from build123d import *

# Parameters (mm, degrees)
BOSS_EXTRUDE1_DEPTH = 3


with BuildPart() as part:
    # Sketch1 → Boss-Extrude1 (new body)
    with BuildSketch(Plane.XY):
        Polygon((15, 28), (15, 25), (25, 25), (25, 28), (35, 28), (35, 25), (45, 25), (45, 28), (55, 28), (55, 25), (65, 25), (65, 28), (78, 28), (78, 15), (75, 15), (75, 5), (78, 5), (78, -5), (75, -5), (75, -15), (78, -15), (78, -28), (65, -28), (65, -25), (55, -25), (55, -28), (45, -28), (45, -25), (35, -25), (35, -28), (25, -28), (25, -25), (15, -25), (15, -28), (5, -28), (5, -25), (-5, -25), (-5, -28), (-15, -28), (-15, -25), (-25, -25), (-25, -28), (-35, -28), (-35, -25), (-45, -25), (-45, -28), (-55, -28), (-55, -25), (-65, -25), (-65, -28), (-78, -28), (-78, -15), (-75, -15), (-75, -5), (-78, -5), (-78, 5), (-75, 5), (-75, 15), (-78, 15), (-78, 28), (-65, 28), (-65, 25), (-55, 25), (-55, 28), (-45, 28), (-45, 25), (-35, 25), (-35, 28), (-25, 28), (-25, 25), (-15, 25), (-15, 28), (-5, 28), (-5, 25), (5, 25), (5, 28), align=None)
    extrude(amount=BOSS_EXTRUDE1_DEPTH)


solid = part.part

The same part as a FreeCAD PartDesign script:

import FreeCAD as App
import Part
import Sketcher
from FreeCAD import Vector


def add_polygon(sketch, points):
    """Adds a closed chain of lines whose ends are joined by coincident constraints."""
    first, n = sketch.GeometryCount, len(points)
    for a, b in zip(points, points[1:] + points[:1]):
        sketch.addGeometry(Part.LineSegment(App.Vector(*a, 0), App.Vector(*b, 0)), False)
    for i in range(n):
        sketch.addConstraint(Sketcher.Constraint("Coincident", first + i, 2, first + (i + 1) % n, 1))

doc = App.newDocument("Part")
body = doc.addObject("PartDesign::Body", "Body")

sketch1 = doc.addObject("Sketcher::SketchObject", "Sketch")
body.addObject(sketch1)
sketch1.AttachmentSupport = (doc.XY_Plane, [""])
sketch1.MapMode = "FlatFace"
add_polygon(sketch1, [(15, 25), (15, 28), (5, 28), (5, 25), (-5, 25), (-5, 28), (-15, 28), (-15, 25), (-25, 25), (-25, 28), (-35, 28), (-35, 25), (-45, 25), (-45, 28), (-55, 28), (-55, 25), (-65, 25), (-65, 28), (-78, 28), (-78, 15), (-75, 15), (-75, 5), (-78, 5), (-78, -5), (-75, -5), (-75, -15), (-78, -15), (-78, -28), (-65, -28), (-65, -25), (-55, -25), (-55, -28), (-45, -28), (-45, -25), (-35, -25), (-35, -28), (-25, -28), (-25, -25), (-15, -25), (-15, -28), (-5, -28), (-5, -25), (5, -25), (5, -28), (15, -28), (15, -25), (25, -25), (25, -28), (35, -28), (35, -25), (45, -25), (45, -28), (55, -28), (55, -25), (65, -25), (65, -28), (78, -28), (78, -15), (75, -15), (75, -5), (78, -5), (78, 5), (75, 5), (75, 15), (78, 15), (78, 28), (65, 28), (65, 25), (55, 25), (55, 28), (45, 28), (45, 25), (35, 25), (35, 28), (25, 28), (25, 25)])
sketch1.addConstraint(Sketcher.Constraint("Vertical", 0))
sketch1.addConstraint(Sketcher.Constraint("Horizontal", 1))
sketch1.addConstraint(Sketcher.Constraint("Vertical", 2))
sketch1.addConstraint(Sketcher.Constraint("Horizontal", 3))
sketch1.addConstraint(Sketcher.Constraint("Vertical", 4))
sketch1.addConstraint(Sketcher.Constraint("Horizontal", 5))
sketch1.addConstraint(Sketcher.Constraint("Vertical", 6))
sketch1.addConstraint(Sketcher.Constraint("Horizontal", 7))
sketch1.addConstraint(Sketcher.Constraint("Vertical", 8))
sketch1.addConstraint(Sketcher.Constraint("Horizontal", 9))
sketch1.addConstraint(Sketcher.Constraint("Vertical", 10))
sketch1.addConstraint(Sketcher.Constraint("Horizontal", 11))
sketch1.addConstraint(Sketcher.Constraint("Vertical", 12))
sketch1.addConstraint(Sketcher.Constraint("Horizontal", 13))
sketch1.addConstraint(Sketcher.Constraint("Vertical", 14))
sketch1.addConstraint(Sketcher.Constraint("Horizontal", 15))
sketch1.addConstraint(Sketcher.Constraint("Vertical", 16))
sketch1.addConstraint(Sketcher.Constraint("Horizontal", 17))
sketch1.addConstraint(Sketcher.Constraint("Vertical", 18))
sketch1.addConstraint(Sketcher.Constraint("Horizontal", 19))
sketch1.addConstraint(Sketcher.Constraint("Vertical", 20))
sketch1.addConstraint(Sketcher.Constraint("Horizontal", 21))
sketch1.addConstraint(Sketcher.Constraint("Vertical", 22))
sketch1.addConstraint(Sketcher.Constraint("Horizontal", 23))
sketch1.addConstraint(Sketcher.Constraint("Vertical", 24))
sketch1.addConstraint(Sketcher.Constraint("Horizontal", 25))
sketch1.addConstraint(Sketcher.Constraint("Vertical", 26))
sketch1.addConstraint(Sketcher.Constraint("Horizontal", 27))
sketch1.addConstraint(Sketcher.Constraint("Vertical", 28))
sketch1.addConstraint(Sketcher.Constraint("Horizontal", 29))
sketch1.addConstraint(Sketcher.Constraint("Vertical", 30))
sketch1.addConstraint(Sketcher.Constraint("Horizontal", 31))
sketch1.addConstraint(Sketcher.Constraint("Vertical", 32))
sketch1.addConstraint(Sketcher.Constraint("Horizontal", 33))
sketch1.addConstraint(Sketcher.Constraint("Vertical", 34))
sketch1.addConstraint(Sketcher.Constraint("Horizontal", 35))
sketch1.addConstraint(Sketcher.Constraint("Vertical", 36))
sketch1.addConstraint(Sketcher.Constraint("Horizontal", 37))
sketch1.addConstraint(Sketcher.Constraint("Vertical", 38))
sketch1.addConstraint(Sketcher.Constraint("Horizontal", 39))
sketch1.addConstraint(Sketcher.Constraint("Vertical", 40))
sketch1.addConstraint(Sketcher.Constraint("Horizontal", 41))
sketch1.addConstraint(Sketcher.Constraint("Vertical", 42))
sketch1.addConstraint(Sketcher.Constraint("Horizontal", 43))
sketch1.addConstraint(Sketcher.Constraint("Vertical", 44))
sketch1.addConstraint(Sketcher.Constraint("Horizontal", 45))
sketch1.addConstraint(Sketcher.Constraint("Vertical", 46))
sketch1.addConstraint(Sketcher.Constraint("Horizontal", 47))
sketch1.addConstraint(Sketcher.Constraint("Vertical", 48))
sketch1.addConstraint(Sketcher.Constraint("Horizontal", 49))
sketch1.addConstraint(Sketcher.Constraint("Vertical", 50))
sketch1.addConstraint(Sketcher.Constraint("Horizontal", 51))
sketch1.addConstraint(Sketcher.Constraint("Vertical", 52))
sketch1.addConstraint(Sketcher.Constraint("Horizontal", 53))
sketch1.addConstraint(Sketcher.Constraint("Vertical", 54))
sketch1.addConstraint(Sketcher.Constraint("Horizontal", 55))
sketch1.addConstraint(Sketcher.Constraint("Vertical", 56))
sketch1.addConstraint(Sketcher.Constraint("Horizontal", 57))
sketch1.addConstraint(Sketcher.Constraint("Vertical", 58))
sketch1.addConstraint(Sketcher.Constraint("Horizontal", 59))
sketch1.addConstraint(Sketcher.Constraint("Vertical", 60))
sketch1.addConstraint(Sketcher.Constraint("Horizontal", 61))
sketch1.addConstraint(Sketcher.Constraint("Vertical", 62))
sketch1.addConstraint(Sketcher.Constraint("Horizontal", 63))
sketch1.addConstraint(Sketcher.Constraint("Vertical", 64))
sketch1.addConstraint(Sketcher.Constraint("Horizontal", 65))
sketch1.addConstraint(Sketcher.Constraint("Vertical", 66))
sketch1.addConstraint(Sketcher.Constraint("Horizontal", 67))
sketch1.addConstraint(Sketcher.Constraint("Vertical", 68))
sketch1.addConstraint(Sketcher.Constraint("Horizontal", 69))
sketch1.addConstraint(Sketcher.Constraint("Vertical", 70))
sketch1.addConstraint(Sketcher.Constraint("Horizontal", 71))
sketch1.addConstraint(Sketcher.Constraint("Vertical", 72))
sketch1.addConstraint(Sketcher.Constraint("Horizontal", 73))
sketch1.addConstraint(Sketcher.Constraint("Vertical", 74))
sketch1.addConstraint(Sketcher.Constraint("Horizontal", 75))
sketch1.addConstraint(Sketcher.Constraint("Symmetric", 0, 2, 38, 2, -1, 1))
sketch1.addConstraint(Sketcher.Constraint("Symmetric", 2, 2, 40, 2, -1, 1))
sketch1.addConstraint(Sketcher.Constraint("Symmetric", 4, 2, 42, 2, -1, 1))
sketch1.addConstraint(Sketcher.Constraint("Symmetric", 6, 2, 44, 2, -1, 1))
sketch1.addConstraint(Sketcher.Constraint("Symmetric", 8, 2, 46, 2, -1, 1))
sketch1.addConstraint(Sketcher.Constraint("Symmetric", 10, 2, 48, 2, -1, 1))
sketch1.addConstraint(Sketcher.Constraint("Symmetric", 12, 2, 50, 2, -1, 1))
sketch1.addConstraint(Sketcher.Constraint("Symmetric", 14, 2, 52, 2, -1, 1))
sketch1.addConstraint(Sketcher.Constraint("Symmetric", 16, 2, 54, 2, -1, 1))
sketch1.addConstraint(Sketcher.Constraint("Symmetric", 18, 2, 56, 2, -1, 1))
sketch1.addConstraint(Sketcher.Constraint("Symmetric", 20, 2, 58, 2, -1, 1))
sketch1.addConstraint(Sketcher.Constraint("Symmetric", 22, 2, 60, 2, -1, 1))
sketch1.addConstraint(Sketcher.Constraint("Symmetric", 24, 2, 62, 2, -1, 1))
sketch1.addConstraint(Sketcher.Constraint("Symmetric", 26, 2, 64, 2, -1, 1))
sketch1.addConstraint(Sketcher.Constraint("Symmetric", 28, 2, 66, 2, -1, 1))
sketch1.addConstraint(Sketcher.Constraint("Symmetric", 30, 2, 68, 2, -1, 1))
sketch1.addConstraint(Sketcher.Constraint("Symmetric", 32, 2, 70, 2, -1, 1))
sketch1.addConstraint(Sketcher.Constraint("Symmetric", 34, 2, 72, 2, -1, 1))
sketch1.addConstraint(Sketcher.Constraint("Symmetric", 36, 2, 74, 2, -1, 1))
sketch1.addConstraint(Sketcher.Constraint("Symmetric", 1, 2, 4, 2, -2))
sketch1.addConstraint(Sketcher.Constraint("Symmetric", 37, 2, 44, 2, -2))
sketch1.addConstraint(Sketcher.Constraint("Symmetric", 35, 2, 46, 2, -2))
sketch1.addConstraint(Sketcher.Constraint("Symmetric", 33, 2, 48, 2, -2))
sketch1.addConstraint(Sketcher.Constraint("Symmetric", 31, 2, 50, 2, -2))
sketch1.addConstraint(Sketcher.Constraint("Symmetric", 29, 2, 52, 2, -2))
sketch1.addConstraint(Sketcher.Constraint("Symmetric", 27, 2, 54, 2, -2))
sketch1.addConstraint(Sketcher.Constraint("Symmetric", 25, 2, 56, 2, -2))
sketch1.addConstraint(Sketcher.Constraint("Symmetric", 23, 2, 58, 2, -2))
sketch1.addConstraint(Sketcher.Constraint("Horizontal", 3, 2, 6, 2))
sketch1.addConstraint(Sketcher.Constraint("Horizontal", 5, 2, 8, 2))
sketch1.addConstraint(Sketcher.Constraint("Horizontal", 7, 2, 10, 2))
sketch1.addConstraint(Sketcher.Constraint("Horizontal", 9, 2, 12, 2))
sketch1.addConstraint(Sketcher.Constraint("Horizontal", 11, 2, 14, 2))
sketch1.addConstraint(Sketcher.Constraint("Horizontal", 13, 2, 16, 2))
sketch1.addConstraint(Sketcher.Constraint("Vertical", 18, 2, 21, 2))
sketch1.addConstraint(Sketcher.Constraint("Equal", 1, 3))
sketch1.addConstraint(Sketcher.Constraint("Equal", 5, 7))
sketch1.addConstraint(Sketcher.Constraint("Equal", 7, 9))
sketch1.addConstraint(Sketcher.Constraint("Equal", 9, 11))
sketch1.addConstraint(Sketcher.Constraint("Equal", 11, 13))
sketch1.addConstraint(Sketcher.Constraint("Equal", 13, 15))
sketch1.addConstraint(Sketcher.Constraint("Equal", 63, 0))
sketch1.addConstraint(Sketcher.Constraint("Equal", 65, 18))
sketch1.addConstraint(Sketcher.Constraint("Equal", 75, 20))
sketch1.addConstraint(Sketcher.Constraint("Equal", 20, 22))
sketch1.addConstraint(Sketcher.Constraint("DistanceX", 1, 2, 1, 1, 10.0))
sketch1.addConstraint(Sketcher.Constraint("DistanceX", 17, 2, 17, 1, 13.0))
sketch1.addConstraint(Sketcher.Constraint("DistanceX", 19, 1, 19, 2, 3.0))
pad1 = doc.addObject("PartDesign::Pad", "Pad")
body.addObject(pad1)
pad1.Profile = sketch1
pad1.Length = 3

doc.recompute()
